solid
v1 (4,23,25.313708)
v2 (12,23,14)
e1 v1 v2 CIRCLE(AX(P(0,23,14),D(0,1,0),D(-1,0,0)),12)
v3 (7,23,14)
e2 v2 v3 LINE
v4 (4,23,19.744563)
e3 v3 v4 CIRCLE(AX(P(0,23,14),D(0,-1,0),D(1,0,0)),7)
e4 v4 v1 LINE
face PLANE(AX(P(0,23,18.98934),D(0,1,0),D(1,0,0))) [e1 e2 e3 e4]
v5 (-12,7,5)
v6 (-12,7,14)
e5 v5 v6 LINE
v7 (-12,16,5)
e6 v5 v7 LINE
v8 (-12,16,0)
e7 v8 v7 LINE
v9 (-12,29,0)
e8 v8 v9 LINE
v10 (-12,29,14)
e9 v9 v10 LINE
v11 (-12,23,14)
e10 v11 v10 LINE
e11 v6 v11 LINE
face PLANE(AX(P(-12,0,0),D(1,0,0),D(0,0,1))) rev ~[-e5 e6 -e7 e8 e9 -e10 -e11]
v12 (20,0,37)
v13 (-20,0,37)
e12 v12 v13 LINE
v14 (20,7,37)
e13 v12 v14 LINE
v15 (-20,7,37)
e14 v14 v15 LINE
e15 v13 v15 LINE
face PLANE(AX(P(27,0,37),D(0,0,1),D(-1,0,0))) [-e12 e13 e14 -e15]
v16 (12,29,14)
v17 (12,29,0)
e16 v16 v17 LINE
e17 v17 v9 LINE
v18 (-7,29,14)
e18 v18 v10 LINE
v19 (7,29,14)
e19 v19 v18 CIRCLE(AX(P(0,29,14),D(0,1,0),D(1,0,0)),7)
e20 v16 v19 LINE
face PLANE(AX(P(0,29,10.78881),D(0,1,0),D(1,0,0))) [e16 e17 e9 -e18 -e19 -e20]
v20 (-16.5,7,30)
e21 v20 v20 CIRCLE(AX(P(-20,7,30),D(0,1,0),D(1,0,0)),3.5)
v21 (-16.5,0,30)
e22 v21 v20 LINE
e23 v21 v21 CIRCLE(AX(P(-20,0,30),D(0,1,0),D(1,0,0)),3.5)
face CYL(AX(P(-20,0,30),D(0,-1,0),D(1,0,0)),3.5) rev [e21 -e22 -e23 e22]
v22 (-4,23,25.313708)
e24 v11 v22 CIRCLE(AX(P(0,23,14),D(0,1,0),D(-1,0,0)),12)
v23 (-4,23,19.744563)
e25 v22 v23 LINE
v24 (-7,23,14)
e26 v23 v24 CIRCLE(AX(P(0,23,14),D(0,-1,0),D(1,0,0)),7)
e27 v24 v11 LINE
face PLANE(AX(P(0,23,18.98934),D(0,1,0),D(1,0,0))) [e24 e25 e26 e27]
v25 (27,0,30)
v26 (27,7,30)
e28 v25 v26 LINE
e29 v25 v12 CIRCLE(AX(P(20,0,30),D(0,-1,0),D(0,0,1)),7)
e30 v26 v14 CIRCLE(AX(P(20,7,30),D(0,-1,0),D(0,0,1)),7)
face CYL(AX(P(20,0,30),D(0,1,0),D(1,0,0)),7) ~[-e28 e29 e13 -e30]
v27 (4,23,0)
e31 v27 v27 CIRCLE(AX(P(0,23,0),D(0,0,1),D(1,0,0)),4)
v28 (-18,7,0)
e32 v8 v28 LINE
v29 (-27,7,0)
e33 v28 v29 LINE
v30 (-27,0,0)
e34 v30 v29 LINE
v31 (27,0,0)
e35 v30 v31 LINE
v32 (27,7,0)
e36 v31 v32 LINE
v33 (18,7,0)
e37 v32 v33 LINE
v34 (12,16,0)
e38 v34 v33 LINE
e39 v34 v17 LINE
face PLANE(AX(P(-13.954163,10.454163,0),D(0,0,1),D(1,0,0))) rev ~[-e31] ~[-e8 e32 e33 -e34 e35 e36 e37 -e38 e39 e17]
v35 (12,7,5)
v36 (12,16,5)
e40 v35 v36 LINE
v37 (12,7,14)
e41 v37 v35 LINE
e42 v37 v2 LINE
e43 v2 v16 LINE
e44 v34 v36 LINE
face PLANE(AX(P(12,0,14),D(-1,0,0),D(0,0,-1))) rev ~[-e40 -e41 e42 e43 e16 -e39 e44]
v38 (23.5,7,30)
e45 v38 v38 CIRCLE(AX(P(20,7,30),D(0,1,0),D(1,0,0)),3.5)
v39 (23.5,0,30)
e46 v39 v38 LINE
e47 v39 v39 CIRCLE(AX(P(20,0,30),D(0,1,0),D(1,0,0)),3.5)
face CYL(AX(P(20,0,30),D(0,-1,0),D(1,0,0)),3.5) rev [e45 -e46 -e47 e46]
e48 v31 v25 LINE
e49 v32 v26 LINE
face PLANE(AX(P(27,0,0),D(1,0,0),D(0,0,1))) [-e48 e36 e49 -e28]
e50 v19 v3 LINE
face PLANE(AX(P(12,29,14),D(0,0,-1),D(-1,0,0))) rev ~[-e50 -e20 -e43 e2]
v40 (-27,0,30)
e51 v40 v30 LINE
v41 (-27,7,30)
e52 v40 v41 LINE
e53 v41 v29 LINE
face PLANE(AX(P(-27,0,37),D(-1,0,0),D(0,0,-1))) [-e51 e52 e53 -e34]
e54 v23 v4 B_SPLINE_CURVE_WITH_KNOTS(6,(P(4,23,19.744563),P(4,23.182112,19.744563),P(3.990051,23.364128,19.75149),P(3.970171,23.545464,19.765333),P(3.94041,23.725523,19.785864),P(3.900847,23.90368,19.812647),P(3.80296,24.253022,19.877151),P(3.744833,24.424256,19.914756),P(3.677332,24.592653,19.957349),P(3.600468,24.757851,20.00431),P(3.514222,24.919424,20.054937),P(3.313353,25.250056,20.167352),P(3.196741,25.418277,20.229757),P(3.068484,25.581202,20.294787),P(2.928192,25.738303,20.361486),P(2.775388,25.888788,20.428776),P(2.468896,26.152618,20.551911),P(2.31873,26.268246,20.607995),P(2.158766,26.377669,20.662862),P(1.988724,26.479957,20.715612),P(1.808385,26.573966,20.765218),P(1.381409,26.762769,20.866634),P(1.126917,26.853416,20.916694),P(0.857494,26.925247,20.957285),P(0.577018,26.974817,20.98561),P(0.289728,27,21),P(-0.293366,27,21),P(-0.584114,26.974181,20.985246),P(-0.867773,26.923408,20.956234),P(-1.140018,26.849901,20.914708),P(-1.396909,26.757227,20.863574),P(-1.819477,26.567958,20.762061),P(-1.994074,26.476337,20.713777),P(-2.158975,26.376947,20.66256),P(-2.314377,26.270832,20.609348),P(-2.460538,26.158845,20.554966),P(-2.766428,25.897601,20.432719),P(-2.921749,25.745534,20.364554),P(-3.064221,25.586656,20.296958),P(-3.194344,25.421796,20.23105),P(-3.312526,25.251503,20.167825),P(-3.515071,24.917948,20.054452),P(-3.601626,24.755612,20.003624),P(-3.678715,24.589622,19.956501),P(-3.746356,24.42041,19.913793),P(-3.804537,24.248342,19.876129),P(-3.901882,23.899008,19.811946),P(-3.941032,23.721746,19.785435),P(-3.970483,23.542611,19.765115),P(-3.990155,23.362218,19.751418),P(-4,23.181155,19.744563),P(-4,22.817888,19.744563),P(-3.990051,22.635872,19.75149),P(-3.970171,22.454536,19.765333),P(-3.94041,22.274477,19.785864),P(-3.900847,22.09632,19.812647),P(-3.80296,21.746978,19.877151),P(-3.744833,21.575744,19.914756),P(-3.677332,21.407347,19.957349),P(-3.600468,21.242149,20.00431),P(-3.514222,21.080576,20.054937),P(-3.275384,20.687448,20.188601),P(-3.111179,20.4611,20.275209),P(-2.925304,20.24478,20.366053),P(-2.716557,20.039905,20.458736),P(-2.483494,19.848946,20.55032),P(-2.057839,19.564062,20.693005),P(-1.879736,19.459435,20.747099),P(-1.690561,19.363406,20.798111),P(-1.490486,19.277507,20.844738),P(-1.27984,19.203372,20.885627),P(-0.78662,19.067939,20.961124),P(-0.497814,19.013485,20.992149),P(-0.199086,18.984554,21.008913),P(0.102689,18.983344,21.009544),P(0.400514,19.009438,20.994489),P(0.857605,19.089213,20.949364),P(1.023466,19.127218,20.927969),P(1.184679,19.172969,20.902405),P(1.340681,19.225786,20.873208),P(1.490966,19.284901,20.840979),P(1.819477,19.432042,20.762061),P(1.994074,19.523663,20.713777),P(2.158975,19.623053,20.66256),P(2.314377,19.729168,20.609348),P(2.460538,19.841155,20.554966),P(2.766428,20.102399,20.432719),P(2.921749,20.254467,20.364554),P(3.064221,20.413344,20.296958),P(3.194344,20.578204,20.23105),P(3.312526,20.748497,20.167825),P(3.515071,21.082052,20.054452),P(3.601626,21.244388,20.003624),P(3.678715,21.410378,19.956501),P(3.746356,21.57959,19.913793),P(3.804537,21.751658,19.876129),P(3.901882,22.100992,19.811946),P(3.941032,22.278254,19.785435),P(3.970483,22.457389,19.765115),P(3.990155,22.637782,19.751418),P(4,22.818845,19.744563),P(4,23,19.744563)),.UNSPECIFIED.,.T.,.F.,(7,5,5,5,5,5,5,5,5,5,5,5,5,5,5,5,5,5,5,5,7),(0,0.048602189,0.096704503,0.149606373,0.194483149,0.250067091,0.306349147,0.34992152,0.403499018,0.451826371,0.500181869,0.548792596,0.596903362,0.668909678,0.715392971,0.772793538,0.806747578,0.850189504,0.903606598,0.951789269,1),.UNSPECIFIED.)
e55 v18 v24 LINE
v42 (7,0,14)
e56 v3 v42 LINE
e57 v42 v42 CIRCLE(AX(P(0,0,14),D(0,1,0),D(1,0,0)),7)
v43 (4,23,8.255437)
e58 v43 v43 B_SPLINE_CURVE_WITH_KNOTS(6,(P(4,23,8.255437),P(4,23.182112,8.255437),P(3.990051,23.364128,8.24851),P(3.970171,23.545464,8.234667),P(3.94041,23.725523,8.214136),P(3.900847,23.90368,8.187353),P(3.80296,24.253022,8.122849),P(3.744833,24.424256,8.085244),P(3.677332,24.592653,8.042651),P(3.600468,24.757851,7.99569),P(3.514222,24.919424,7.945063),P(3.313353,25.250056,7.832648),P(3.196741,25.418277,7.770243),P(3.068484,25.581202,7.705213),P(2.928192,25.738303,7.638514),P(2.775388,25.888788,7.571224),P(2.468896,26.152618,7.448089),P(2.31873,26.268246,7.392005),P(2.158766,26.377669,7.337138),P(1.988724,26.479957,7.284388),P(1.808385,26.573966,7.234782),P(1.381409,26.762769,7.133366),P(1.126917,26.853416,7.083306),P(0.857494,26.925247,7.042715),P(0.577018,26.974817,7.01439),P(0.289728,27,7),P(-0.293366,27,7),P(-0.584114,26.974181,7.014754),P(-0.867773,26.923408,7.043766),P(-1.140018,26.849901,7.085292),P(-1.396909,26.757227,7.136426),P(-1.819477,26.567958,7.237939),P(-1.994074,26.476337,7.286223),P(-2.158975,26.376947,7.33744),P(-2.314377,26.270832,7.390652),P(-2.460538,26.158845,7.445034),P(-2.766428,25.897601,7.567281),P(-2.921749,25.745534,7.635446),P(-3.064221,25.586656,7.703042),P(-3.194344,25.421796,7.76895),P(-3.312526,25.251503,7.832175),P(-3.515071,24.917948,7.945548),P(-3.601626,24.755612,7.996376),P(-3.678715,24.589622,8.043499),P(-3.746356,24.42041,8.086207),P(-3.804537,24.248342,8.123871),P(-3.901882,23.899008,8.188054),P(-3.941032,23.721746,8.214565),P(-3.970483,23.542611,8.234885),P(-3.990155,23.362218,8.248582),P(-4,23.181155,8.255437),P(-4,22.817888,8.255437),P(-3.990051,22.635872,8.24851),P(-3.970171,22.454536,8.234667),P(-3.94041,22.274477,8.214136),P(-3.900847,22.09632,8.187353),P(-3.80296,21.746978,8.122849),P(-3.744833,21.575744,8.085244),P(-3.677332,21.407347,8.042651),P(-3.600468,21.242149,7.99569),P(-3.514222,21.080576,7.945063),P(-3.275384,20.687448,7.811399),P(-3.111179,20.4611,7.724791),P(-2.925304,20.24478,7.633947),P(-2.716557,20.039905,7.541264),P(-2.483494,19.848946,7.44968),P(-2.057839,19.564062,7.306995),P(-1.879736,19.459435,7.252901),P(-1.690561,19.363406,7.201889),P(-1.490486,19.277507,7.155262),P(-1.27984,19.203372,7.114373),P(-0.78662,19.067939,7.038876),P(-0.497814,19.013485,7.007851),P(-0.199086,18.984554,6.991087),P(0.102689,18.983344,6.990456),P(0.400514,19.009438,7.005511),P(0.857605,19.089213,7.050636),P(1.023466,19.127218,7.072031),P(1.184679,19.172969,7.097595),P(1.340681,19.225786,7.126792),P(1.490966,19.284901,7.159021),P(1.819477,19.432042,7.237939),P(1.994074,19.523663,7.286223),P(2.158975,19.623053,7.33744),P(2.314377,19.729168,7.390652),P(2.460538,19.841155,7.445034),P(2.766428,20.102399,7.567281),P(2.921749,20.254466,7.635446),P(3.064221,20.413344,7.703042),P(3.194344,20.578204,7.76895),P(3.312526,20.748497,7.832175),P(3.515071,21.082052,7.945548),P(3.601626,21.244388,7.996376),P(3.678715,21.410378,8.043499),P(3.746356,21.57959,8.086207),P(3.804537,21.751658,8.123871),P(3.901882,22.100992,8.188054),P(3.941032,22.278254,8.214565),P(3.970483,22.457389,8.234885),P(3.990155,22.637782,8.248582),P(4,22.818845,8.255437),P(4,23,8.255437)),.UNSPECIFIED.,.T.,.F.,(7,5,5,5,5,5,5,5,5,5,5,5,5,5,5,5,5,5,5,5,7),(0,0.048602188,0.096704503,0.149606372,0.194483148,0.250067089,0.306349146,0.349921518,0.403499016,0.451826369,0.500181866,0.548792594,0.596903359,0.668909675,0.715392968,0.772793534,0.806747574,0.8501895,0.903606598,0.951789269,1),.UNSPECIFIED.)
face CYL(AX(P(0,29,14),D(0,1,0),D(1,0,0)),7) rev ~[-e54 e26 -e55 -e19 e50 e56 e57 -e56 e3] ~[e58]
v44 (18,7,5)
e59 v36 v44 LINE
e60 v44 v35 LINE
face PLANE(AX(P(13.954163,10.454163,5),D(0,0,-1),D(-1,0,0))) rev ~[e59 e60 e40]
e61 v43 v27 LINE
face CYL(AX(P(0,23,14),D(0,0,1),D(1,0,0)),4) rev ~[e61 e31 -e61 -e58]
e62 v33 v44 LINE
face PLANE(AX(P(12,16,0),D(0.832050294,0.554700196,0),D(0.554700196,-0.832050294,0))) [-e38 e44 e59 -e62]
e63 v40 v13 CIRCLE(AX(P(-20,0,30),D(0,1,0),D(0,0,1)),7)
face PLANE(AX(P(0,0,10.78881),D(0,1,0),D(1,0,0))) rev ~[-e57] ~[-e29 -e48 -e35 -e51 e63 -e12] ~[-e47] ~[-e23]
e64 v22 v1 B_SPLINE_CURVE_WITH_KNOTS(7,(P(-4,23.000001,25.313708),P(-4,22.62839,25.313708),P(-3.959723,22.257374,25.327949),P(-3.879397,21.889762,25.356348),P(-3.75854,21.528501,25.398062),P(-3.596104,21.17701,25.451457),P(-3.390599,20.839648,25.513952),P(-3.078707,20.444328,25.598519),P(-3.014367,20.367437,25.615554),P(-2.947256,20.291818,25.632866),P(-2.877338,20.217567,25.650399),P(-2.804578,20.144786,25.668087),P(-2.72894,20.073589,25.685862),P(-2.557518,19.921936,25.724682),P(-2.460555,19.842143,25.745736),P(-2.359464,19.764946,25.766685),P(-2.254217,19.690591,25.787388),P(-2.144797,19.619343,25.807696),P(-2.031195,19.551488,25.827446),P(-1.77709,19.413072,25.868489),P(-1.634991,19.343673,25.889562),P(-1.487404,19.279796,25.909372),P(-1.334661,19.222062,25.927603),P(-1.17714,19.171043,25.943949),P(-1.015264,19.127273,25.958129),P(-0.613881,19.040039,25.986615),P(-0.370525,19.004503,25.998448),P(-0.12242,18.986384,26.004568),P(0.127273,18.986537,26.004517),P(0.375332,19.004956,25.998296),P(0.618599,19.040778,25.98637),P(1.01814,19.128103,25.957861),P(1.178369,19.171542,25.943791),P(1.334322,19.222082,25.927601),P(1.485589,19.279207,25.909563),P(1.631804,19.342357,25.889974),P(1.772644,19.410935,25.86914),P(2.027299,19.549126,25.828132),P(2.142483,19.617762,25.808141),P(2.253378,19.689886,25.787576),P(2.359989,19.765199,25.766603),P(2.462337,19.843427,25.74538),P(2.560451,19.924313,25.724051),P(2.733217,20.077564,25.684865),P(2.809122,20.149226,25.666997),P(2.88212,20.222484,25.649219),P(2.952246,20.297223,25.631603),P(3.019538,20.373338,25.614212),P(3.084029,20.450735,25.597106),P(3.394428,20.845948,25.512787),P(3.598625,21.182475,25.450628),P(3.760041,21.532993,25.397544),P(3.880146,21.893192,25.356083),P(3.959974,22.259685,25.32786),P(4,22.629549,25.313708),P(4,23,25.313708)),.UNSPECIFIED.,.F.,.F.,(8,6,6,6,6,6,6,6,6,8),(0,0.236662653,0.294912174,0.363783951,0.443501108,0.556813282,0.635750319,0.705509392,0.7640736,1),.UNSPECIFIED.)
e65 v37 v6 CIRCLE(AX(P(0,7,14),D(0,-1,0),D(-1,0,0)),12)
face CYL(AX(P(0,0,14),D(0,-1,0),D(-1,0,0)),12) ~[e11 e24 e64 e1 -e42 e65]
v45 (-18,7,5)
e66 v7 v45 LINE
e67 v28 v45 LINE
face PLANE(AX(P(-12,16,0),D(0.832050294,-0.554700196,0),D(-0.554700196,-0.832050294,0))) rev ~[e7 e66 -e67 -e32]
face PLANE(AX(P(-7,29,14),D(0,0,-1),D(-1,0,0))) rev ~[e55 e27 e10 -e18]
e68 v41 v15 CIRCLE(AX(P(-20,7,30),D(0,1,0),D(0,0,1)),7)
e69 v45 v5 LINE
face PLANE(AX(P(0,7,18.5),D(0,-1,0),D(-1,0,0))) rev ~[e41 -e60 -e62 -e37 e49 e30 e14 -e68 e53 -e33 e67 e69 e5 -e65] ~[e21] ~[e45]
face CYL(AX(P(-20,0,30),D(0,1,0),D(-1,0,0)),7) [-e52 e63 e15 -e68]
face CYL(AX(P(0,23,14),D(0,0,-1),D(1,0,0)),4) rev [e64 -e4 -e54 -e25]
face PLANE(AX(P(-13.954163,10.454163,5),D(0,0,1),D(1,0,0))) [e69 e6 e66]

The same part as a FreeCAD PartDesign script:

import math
import FreeCAD as App
import Part
import Sketcher


def edges_at(feature, points):
    """Names of the edges that pass closest to the given points."""
    edges = feature.Shape.Edges
    near = lambda p: min(range(len(edges)), key=lambda i: edges[i].distToShape(Part.Vertex(*p))[0])
    return sorted({f"Edge{near(p) + 1}" for p in points})

doc = App.newDocument("Part")
params = doc.addObject("Spreadsheet::Sheet", "Params")
for row, (alias, value) in enumerate([
    ("sketch1_width", "54 mm"),
    ("sketch1_height", "37 mm"),
    ("pad1_length", "7 mm"),
    ("sketch2_diameter", "7 mm"),
    ("pocket1_length", "7 mm"),
    ("fillet_radius", "7 mm"),
    ("sketch3_radius", "12 mm"),
    ("sketch3_height", "14 mm"),
    ("pad2_length", "29 mm"),
    ("sketch4_diameter", "14 mm"),
    ("sketch5_radius", "12 mm"),
    ("sketch5_radius2", "7 mm"),
    ("pocket3_length", "6 mm"),
    ("sketch6_diameter", "8 mm"),
    ("sketch7_width", "6 mm"),
    ("sketch7_height", "9 mm"),
    ("pad3_length", "5 mm"),
], start=1):
    params.set(f"A{row}", alias)
    params.set(f"B{row}", "=" + value)
    params.setAlias(f"B{row}", alias)

body = doc.addObject("PartDesign::Body", "Body")

sketch1 = body.newObject("Sketcher::SketchObject", "Sketch")
sketch1.AttachmentSupport = (doc.getObject("XZ_Plane"), [""])
sketch1.MapMode = "FlatFace"
sketch1.addGeometry([
    Part.LineSegment(App.Vector(27, 0, 0), App.Vector(-27, 0, 0)),
    Part.LineSegment(App.Vector(-27, 0, 0), App.Vector(-27, 37, 0)),
    Part.LineSegment(App.Vector(-27, 37, 0), App.Vector(27, 37, 0)),
    Part.LineSegment(App.Vector(27, 37, 0), App.Vector(27, 0, 0)),
], False)
sketch1.addConstraint([
    Sketcher.Constraint("Coincident", 0, 2, 1, 1),
    Sketcher.Constraint("Coincident", 1, 2, 2, 1),
    Sketcher.Constraint("Coincident", 2, 2, 3, 1),
    Sketcher.Constraint("Coincident", 3, 2, 0, 1),
    Sketcher.Constraint("Horizontal", 0),
    Sketcher.Constraint("Vertical", 1),
    Sketcher.Constraint("Horizontal", 2),
    Sketcher.Constraint("Vertical", 3),
    Sketcher.Constraint("Symmetric", 0, 2, 3, 2, -1, 1),
    Sketcher.Constraint("DistanceX", 0, 2, 0, 1, 54.0),
    Sketcher.Constraint("DistanceY", 1, 1, 1, 2, 37.0),
])
sketch1.setExpression("Constraints[9]", "Params.sketch1_width")
sketch1.setExpression("Constraints[10]", "Params.sketch1_height")
pad1 = body.newObject("PartDesign::Pad", "Pad")
pad1.Profile = sketch1
pad1.setExpression("Length", "Params.pad1_length")
pad1.Reversed = True

sketch2 = body.newObject("Sketcher::SketchObject", "Sketch001")
sketch2.AttachmentSupport = (doc.getObject("XZ_Plane"), [""])
sketch2.MapMode = "FlatFace"
sketch2.addGeometry([
    Part.Circle(App.Vector(-20, 30, 0), App.Vector(0, 0, 1), 3.5),
    Part.Circle(App.Vector(20, 30, 0), App.Vector(0, 0, 1), 3.5),
], False)
sketch2.addConstraint([
    Sketcher.Constraint("Equal", 0, 1),
    Sketcher.Constraint("Symmetric", 0, 3, 1, 3, -2),
    Sketcher.Constraint("Diameter", 0, 7.0),
    Sketcher.Constraint("DistanceX", 0, 3, -1, 1, 20.0),
    Sketcher.Constraint("DistanceY", -1, 1, 0, 3, 30.0),
])
sketch2.setExpression("Constraints[2]", "Params.sketch2_diameter")
pocket1 = body.newObject("PartDesign::Pocket", "Pocket")
pocket1.Profile = sketch2
pocket1.setExpression("Length", "Params.pocket1_length")
doc.recompute()

fillet = body.newObject("PartDesign::Fillet", "Fillet")
fillet.Base = (pocket1, edges_at(pocket1, [(27, 3.5, 37), (-27, 3.5, 37)]))
fillet.setExpression("Radius", "Params.fillet_radius")

sketch3 = body.newObject("Sketcher::SketchObject", "Sketch002")
sketch3.AttachmentSupport = (doc.getObject("XZ_Plane"), [""])
sketch3.MapMode = "FlatFace"
sketch3.addGeometry([
    Part.LineSegment(App.Vector(-12, 0, 0), App.Vector(-12, 14, 0)),
    Part.ArcOfCircle(Part.Circle(App.Vector(0, 14, 0), App.Vector(0, 0, 1), 12), math.radians(0), math.radians(180)),
    Part.LineSegment(App.Vector(12, 14, 0), App.Vector(12, 0, 0)),
    Part.LineSegment(App.Vector(12, 0, 0), App.Vector(-12, 0, 0)),
], False)
sketch3.addConstraint([
    Sketcher.Constraint("Tangent", 0, 2, 1, 2),
    Sketcher.Constraint("Tangent", 1, 1, 2, 1),
    Sketcher.Constraint("Coincident", 2, 2, 3, 1),
    Sketcher.Constraint("Coincident", 3, 2, 0, 1),
    Sketcher.Constraint("Vertical", 0),
    Sketcher.Constraint("Vertical", 2),
    Sketcher.Constraint("Horizontal", 3),
    Sketcher.Constraint("Symmetric", 2, 2, 3, 2, -1, 1),
    Sketcher.Constraint("Radius", 1, 12.0),
    Sketcher.Constraint("DistanceY", 0, 1, 0, 2, 14.0),
])
sketch3.setExpression("Constraints[8]", "Params.sketch3_radius")
sketch3.setExpression("Constraints[9]", "Params.sketch3_height")
pad2 = body.newObject("PartDesign::Pad", "Pad001")
pad2.Profile = sketch3
pad2.setExpression("Length", "Params.pad2_length")
pad2.Reversed = True

sketch4 = body.newObject("Sketcher::SketchObject", "Sketch003")
sketch4.AttachmentSupport = (doc.getObject("XZ_Plane"), [""])
sketch4.MapMode = "FlatFace"
sketch4.AttachmentOffset = App.Placement(App.Vector(0, 0, -29), App.Rotation())
sketch4.addGeometry(Part.Circle(App.Vector(0, 14, 0), App.Vector(0, 0, 1), 7), False)
sketch4.addConstraint([
    Sketcher.Constraint("PointOnObject", 0, 3, -2),
    Sketcher.Constraint("Diameter", 0, 14.0),
    Sketcher.Constraint("DistanceY", -1, 1, 0, 3, 14.0),
])
sketch4.setExpression("Constraints[1]", "Params.sketch4_diameter")
pocket2 = body.newObject("PartDesign::Pocket", "Pocket001")
pocket2.Profile = sketch4
pocket2.Type = "ThroughAll"
pocket2.Reversed = True

sketch5 = body.newObject("Sketcher::SketchObject", "Sketch004")
sketch5.AttachmentSupport = (doc.getObject("XZ_Plane"), [""])
sketch5.MapMode = "FlatFace"
sketch5.AttachmentOffset = App.Placement(App.Vector(0, 0, -29), App.Rotation())
sketch5.addGeometry([
    Part.LineSegment(App.Vector(-7, 14, 0), App.Vector(-12, 14, 0)),
    Part.ArcOfCircle(Part.Circle(App.Vector(0, 14, 0), App.Vector(0, 0, 1), 12), math.radians(0), math.radians(180)),
    Part.LineSegment(App.Vector(12, 14, 0), App.Vector(7, 14, 0)),
    Part.ArcOfCircle(Part.Circle(App.Vector(0, 14, 0), App.Vector(0, 0, 1), 7), math.radians(0), math.radians(180)),
], False)
sketch5.addConstraint([
    Sketcher.Constraint("Coincident", 0, 2, 1, 2),
    Sketcher.Constraint("Coincident", 1, 1, 2, 1),
    Sketcher.Constraint("Coincident", 2, 2, 3, 1),
    Sketcher.Constraint("Coincident", 3, 2, 0, 1),
    Sketcher.Constraint("Horizontal", 0),
    Sketcher.Constraint("Horizontal", 2),
    Sketcher.Constraint("Coincident", 3, 3, 1, 3),
    Sketcher.Constraint("Symmetric", 0, 2, 1, 1, -2),
    Sketcher.Constraint("Horizontal", 3, 3, 0, 2),
    Sketcher.Constraint("Radius", 1, 12.0),
    Sketcher.Constraint("Radius", 3, 7.0),
    Sketcher.Constraint("DistanceY", -1, 1, 1, 3, 14.0),
])
sketch5.setExpression("Constraints[9]", "Params.sketch5_radius")
sketch5.setExpression("Constraints[10]", "Params.sketch5_radius2")
pocket3 = body.newObject("PartDesign::Pocket", "Pocket002")
pocket3.Profile = sketch5
pocket3.setExpression("Length", "Params.pocket3_length")
pocket3.Reversed = True

sketch6 = body.newObject("Sketcher::SketchObject", "Sketch005")
sketch6.AttachmentSupport = (doc.getObject("XY_Plane"), [""])
sketch6.MapMode = "FlatFace"
sketch6.AttachmentOffset = App.Placement(App.Vector(0, 0, 14), App.Rotation())
sketch6.addGeometry(Part.Circle(App.Vector(0, 23, 0), App.Vector(0, 0, 1), 4), False)
sketch6.addConstraint([
    Sketcher.Constraint("PointOnObject", 0, 3, -2),
    Sketcher.Constraint("Diameter", 0, 8.0),
    Sketcher.Constraint("DistanceY", -1, 1, 0, 3, 23.0),
])
sketch6.setExpression("Constraints[1]", "Params.sketch6_diameter")
pocket4 = body.newObject("PartDesign::Pocket", "Pocket003")
pocket4.Profile = sketch6
pocket4.Type = "ThroughAll"
pocket4.Midplane = True

sketch7 = body.newObject("Sketcher::SketchObject", "Sketch006")
sketch7.AttachmentSupport = (doc.getObject("XY_Plane"), [""])
sketch7.MapMode = "FlatFace"
sketch7.addGeometry([
    Part.LineSegment(App.Vector(-12, 16, 0), App.Vector(-18, 7, 0)),
    Part.LineSegment(App.Vector(-18, 7, 0), App.Vector(-12, 7, 0)),
    Part.LineSegment(App.Vector(-12, 7, 0), App.Vector(-12, 16, 0)),
    Part.LineSegment(App.Vector(12, 16, 0), App.Vector(12, 7, 0)),
    Part.LineSegment(App.Vector(12, 7, 0), App.Vector(18, 7, 0)),
    Part.LineSegment(App.Vector(18, 7, 0), App.Vector(12, 16, 0)),
], False)
sketch7.addConstraint([
    Sketcher.Constraint("Coincident", 0, 2, 1, 1),
    Sketcher.Constraint("Coincident", 1, 2, 2, 1),
    Sketcher.Constraint("Coincident", 2, 2, 0, 1),
    Sketcher.Constraint("Coincident", 3, 2, 4, 1),
    Sketcher.Constraint("Coincident", 4, 2, 5, 1),
    Sketcher.Constraint("Coincident", 5, 2, 3, 1),
    Sketcher.Constraint("Horizontal", 1),
    Sketcher.Constraint("Vertical", 2),
    Sketcher.Constraint("Vertical", 3),
    Sketcher.Constraint("Horizontal", 4),
    Sketcher.Constraint("Symmetric", 1, 2, 3, 2, -2),
    Sketcher.Constraint("Horizontal", 2, 2, 5, 2),
    Sketcher.Constraint("Equal", 1, 4),
    Sketcher.Constraint("DistanceX", 1, 1, 1, 2, 6.0),
    Sketcher.Constraint("DistanceY", 2, 1, 2, 2, 9.0),
    Sketcher.Constraint("DistanceX", 0, 2, -1, 1, 18.0),
    Sketcher.Constraint("DistanceY", -1, 1, 0, 2, 7.0),
])
sketch7.setExpression("Constraints[13]", "Params.sketch7_width")
sketch7.setExpression("Constraints[14]", "Params.sketch7_height")
pad3 = body.newObject("PartDesign::Pad", "Pad002")
pad3.Profile = sketch7
pad3.setExpression("Length", "Params.pad3_length")

doc.recompute()
